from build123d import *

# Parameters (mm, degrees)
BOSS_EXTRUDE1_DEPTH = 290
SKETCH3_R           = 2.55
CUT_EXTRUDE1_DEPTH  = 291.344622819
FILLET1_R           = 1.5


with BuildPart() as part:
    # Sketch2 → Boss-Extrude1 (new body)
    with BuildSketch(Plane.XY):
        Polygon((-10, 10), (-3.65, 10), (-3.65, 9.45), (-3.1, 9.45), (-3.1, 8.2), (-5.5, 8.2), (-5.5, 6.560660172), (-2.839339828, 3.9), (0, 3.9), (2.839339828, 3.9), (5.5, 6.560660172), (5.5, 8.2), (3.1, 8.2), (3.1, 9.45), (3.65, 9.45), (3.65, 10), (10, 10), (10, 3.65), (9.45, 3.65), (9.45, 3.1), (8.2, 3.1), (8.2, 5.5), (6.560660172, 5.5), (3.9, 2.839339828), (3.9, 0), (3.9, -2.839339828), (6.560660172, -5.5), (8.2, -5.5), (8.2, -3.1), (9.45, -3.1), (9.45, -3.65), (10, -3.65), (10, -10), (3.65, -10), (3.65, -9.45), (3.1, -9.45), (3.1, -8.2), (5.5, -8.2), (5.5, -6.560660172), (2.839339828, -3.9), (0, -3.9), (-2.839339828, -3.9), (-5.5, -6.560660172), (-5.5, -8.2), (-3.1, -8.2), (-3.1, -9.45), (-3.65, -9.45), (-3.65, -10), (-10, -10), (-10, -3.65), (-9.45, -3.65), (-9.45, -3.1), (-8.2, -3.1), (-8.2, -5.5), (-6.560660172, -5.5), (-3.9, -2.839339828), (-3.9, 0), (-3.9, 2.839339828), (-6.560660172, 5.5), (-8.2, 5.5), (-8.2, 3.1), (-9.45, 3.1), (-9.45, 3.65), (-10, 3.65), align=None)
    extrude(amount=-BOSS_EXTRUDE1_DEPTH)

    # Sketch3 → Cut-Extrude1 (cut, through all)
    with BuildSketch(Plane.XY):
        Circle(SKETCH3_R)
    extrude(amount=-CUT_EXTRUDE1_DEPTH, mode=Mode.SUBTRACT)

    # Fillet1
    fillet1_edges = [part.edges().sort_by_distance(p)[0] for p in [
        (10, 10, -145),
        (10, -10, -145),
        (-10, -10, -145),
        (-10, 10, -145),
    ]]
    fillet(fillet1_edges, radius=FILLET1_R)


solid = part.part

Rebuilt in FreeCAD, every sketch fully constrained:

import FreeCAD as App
import Part
import Sketcher

V = App.Vector


def edges_at(feature, points):
    """Names of the edges that pass closest to the given points."""
    edges = feature.Shape.Edges
    near = lambda p: min(range(len(edges)), key=lambda i: edges[i].distToShape(Part.Vertex(*p))[0])
    return sorted({f"Edge{near(p) + 1}" for p in points})

doc = App.newDocument("Part")
body = doc.addObject("PartDesign::Body", "Body")

sketch1 = doc.addObject("Sketcher::SketchObject", "Sketch")
body.addObject(sketch1)
sketch1.AttachmentSupport = (doc.XY_Plane, [""])
sketch1.MapMode = "FlatFace"
sketch1.addGeometry([
    Part.LineSegment(V(-3.6, 10, 0), V(-10, 10, 0)),
    Part.LineSegment(V(-10, 10, 0), V(-10, 3.6, 0)),
    Part.LineSegment(V(-10, 3.6, 0), V(-9.4, 3.6, 0)),
    Part.LineSegment(V(-9.4, 3.6, 0), V(-9.4, 3.1, 0)),
    Part.LineSegment(V(-9.4, 3.1, 0), V(-8.2, 3.1, 0)),
    Part.LineSegment(V(-8.2, 3.1, 0), V(-8.2, 5.5, 0)),
    Part.LineSegment(V(-8.2, 5.5, 0), V(-6.6, 5.5, 0)),
    Part.LineSegment(V(-6.6, 5.5, 0), V(-3.9, 2.8, 0)),
    Part.LineSegment(V(-3.9, 2.8, 0), V(-3.9, -2.8, 0)),
    Part.LineSegment(V(-3.9, -2.8, 0), V(-6.6, -5.5, 0)),
    Part.LineSegment(V(-6.6, -5.5, 0), V(-8.2, -5.5, 0)),
    Part.LineSegment(V(-8.2, -5.5, 0), V(-8.2, -3.1, 0)),
    Part.LineSegment(V(-8.2, -3.1, 0), V(-9.4, -3.1, 0)),
    Part.LineSegment(V(-9.4, -3.1, 0), V(-9.4, -3.6, 0)),
    Part.LineSegment(V(-9.4, -3.6, 0), V(-10, -3.6, 0)),
    Part.LineSegment(V(-10, -3.6, 0), V(-10, -10, 0)),
    Part.LineSegment(V(-10, -10, 0), V(-3.6, -10, 0)),
    Part.LineSegment(V(-3.6, -10, 0), V(-3.6, -9.4, 0)),
    Part.LineSegment(V(-3.6, -9.4, 0), V(-3.1, -9.4, 0)),
    Part.LineSegment(V(-3.1, -9.4, 0), V(-3.1, -8.2, 0)),
    Part.LineSegment(V(-3.1, -8.2, 0), V(-5.5, -8.2, 0)),
    Part.LineSegment(V(-5.5, -8.2, 0), V(-5.5, -6.6, 0)),
    Part.LineSegment(V(-5.5, -6.6, 0), V(-2.8, -3.9, 0)),
    Part.LineSegment(V(-2.8, -3.9, 0), V(2.8, -3.9, 0)),
    Part.LineSegment(V(2.8, -3.9, 0), V(5.5, -6.6, 0)),
    Part.LineSegment(V(5.5, -6.6, 0), V(5.5, -8.2, 0)),
    Part.LineSegment(V(5.5, -8.2, 0), V(3.1, -8.2, 0)),
    Part.LineSegment(V(3.1, -8.2, 0), V(3.1, -9.4, 0)),
    Part.LineSegment(V(3.1, -9.4, 0), V(3.6, -9.4, 0)),
    Part.LineSegment(V(3.6, -9.4, 0), V(3.6, -10, 0)),
    Part.LineSegment(V(3.6, -10, 0), V(10, -10, 0)),
    Part.LineSegment(V(10, -10, 0), V(10, -3.6, 0)),
    Part.LineSegment(V(10, -3.6, 0), V(9.4, -3.6, 0)),
    Part.LineSegment(V(9.4, -3.6, 0), V(9.4, -3.1, 0)),
    Part.LineSegment(V(9.4, -3.1, 0), V(8.2, -3.1, 0)),
    Part.LineSegment(V(8.2, -3.1, 0), V(8.2, -5.5, 0)),
    Part.LineSegment(V(8.2, -5.5, 0), V(6.6, -5.5, 0)),
    Part.LineSegment(V(6.6, -5.5, 0), V(3.9, -2.8, 0)),
    Part.LineSegment(V(3.9, -2.8, 0), V(3.9, 2.8, 0)),
    Part.LineSegment(V(3.9, 2.8, 0), V(6.6, 5.5, 0)),
    Part.LineSegment(V(6.6, 5.5, 0), V(8.2, 5.5, 0)),
    Part.LineSegment(V(8.2, 5.5, 0), V(8.2, 3.1, 0)),
    Part.LineSegment(V(8.2, 3.1, 0), V(9.4, 3.1, 0)),
    Part.LineSegment(V(9.4, 3.1, 0), V(9.4, 3.6, 0)),
    Part.LineSegment(V(9.4, 3.6, 0), V(10, 3.6, 0)),
    Part.LineSegment(V(10, 3.6, 0), V(10, 10, 0)),
    Part.LineSegment(V(10, 10, 0), V(3.6, 10, 0)),
    Part.LineSegment(V(3.6, 10, 0), V(3.6, 9.4, 0)),
    Part.LineSegment(V(3.6, 9.4, 0), V(3.1, 9.4, 0)),
    Part.LineSegment(V(3.1, 9.4, 0), V(3.1, 8.2, 0)),
    Part.LineSegment(V(3.1, 8.2, 0), V(5.5, 8.2, 0)),
    Part.LineSegment(V(5.5, 8.2, 0), V(5.5, 6.6, 0)),
    Part.LineSegment(V(5.5, 6.6, 0), V(2.8, 3.9, 0)),
    Part.LineSegment(V(2.8, 3.9, 0), V(-2.8, 3.9, 0)),
    Part.LineSegment(V(-2.8, 3.9, 0), V(-5.5, 6.6, 0)),
    Part.LineSegment(V(-5.5, 6.6, 0), V(-5.5, 8.2, 0)),
    Part.LineSegment(V(-5.5, 8.2, 0), V(-3.1, 8.2, 0)),
    Part.LineSegment(V(-3.1, 8.2, 0), V(-3.1, 9.4, 0)),
    Part.LineSegment(V(-3.1, 9.4, 0), V(-3.6, 9.4, 0)),
    Part.LineSegment(V(-3.6, 9.4, 0), V(-3.6, 10, 0)),
], False)
sketch1.addConstraint([
    Sketcher.Constraint("Coincident", 0, 2, 1, 1),
    Sketcher.Constraint("Coincident", 1, 2, 2, 1),
    Sketcher.Constraint("Coincident", 2, 2, 3, 1),
    Sketcher.Constraint("Coincident", 3, 2, 4, 1),
    Sketcher.Constraint("Coincident", 4, 2, 5, 1),
    Sketcher.Constraint("Coincident", 5, 2, 6, 1),
    Sketcher.Constraint("Coincident", 6, 2, 7, 1),
    Sketcher.Constraint("Coincident", 7, 2, 8, 1),
    Sketcher.Constraint("Coincident", 8, 2, 9, 1),
    Sketcher.Constraint("Coincident", 9, 2, 10, 1),
    Sketcher.Constraint("Coincident", 10, 2, 11, 1),
    Sketcher.Constraint("Coincident", 11, 2, 12, 1),
    Sketcher.Constraint("Coincident", 12, 2, 13, 1),
    Sketcher.Constraint("Coincident", 13, 2, 14, 1),
    Sketcher.Constraint("Coincident", 14, 2, 15, 1),
    Sketcher.Constraint("Coincident", 15, 2, 16, 1),
    Sketcher.Constraint("Coincident", 16, 2, 17, 1),
    Sketcher.Constraint("Coincident", 17, 2, 18, 1),
    Sketcher.Constraint("Coincident", 18, 2, 19, 1),
    Sketcher.Constraint("Coincident", 19, 2, 20, 1),
    Sketcher.Constraint("Coincident", 20, 2, 21, 1),
    Sketcher.Constraint("Coincident", 21, 2, 22, 1),
    Sketcher.Constraint("Coincident", 22, 2, 23, 1),
    Sketcher.Constraint("Coincident", 23, 2, 24, 1),
    Sketcher.Constraint("Coincident", 24, 2, 25, 1),
    Sketcher.Constraint("Coincident", 25, 2, 26, 1),
    Sketcher.Constraint("Coincident", 26, 2, 27, 1),
    Sketcher.Constraint("Coincident", 27, 2, 28, 1),
    Sketcher.Constraint("Coincident", 28, 2, 29, 1),
    Sketcher.Constraint("Coincident", 29, 2, 30, 1),
    Sketcher.Constraint("Coincident", 30, 2, 31, 1),
    Sketcher.Constraint("Coincident", 31, 2, 32, 1),
    Sketcher.Constraint("Coincident", 32, 2, 33, 1),
    Sketcher.Constraint("Coincident", 33, 2, 34, 1),
    Sketcher.Constraint("Coincident", 34, 2, 35, 1),
    Sketcher.Constraint("Coincident", 35, 2, 36, 1),
    Sketcher.Constraint("Coincident", 36, 2, 37, 1),
    Sketcher.Constraint("Coincident", 37, 2, 38, 1),
    Sketcher.Constraint("Coincident", 38, 2, 39, 1),
    Sketcher.Constraint("Coincident", 39, 2, 40, 1),
    Sketcher.Constraint("Coincident", 40, 2, 41, 1),
    Sketcher.Constraint("Coincident", 41, 2, 42, 1),
    Sketcher.Constraint("Coincident", 42, 2, 43, 1),
    Sketcher.Constraint("Coincident", 43, 2, 44, 1),
    Sketcher.Constraint("Coincident", 44, 2, 45, 1),
    Sketcher.Constraint("Coincident", 45, 2, 46, 1),
    Sketcher.Constraint("Coincident", 46, 2, 47, 1),
    Sketcher.Constraint("Coincident", 47, 2, 48, 1),
    Sketcher.Constraint("Coincident", 48, 2, 49, 1),
    Sketcher.Constraint("Coincident", 49, 2, 50, 1),
    Sketcher.Constraint("Coincident", 50, 2, 51, 1),
    Sketcher.Constraint("Coincident", 51, 2, 52, 1),
    Sketcher.Constraint("Coincident", 52, 2, 53, 1),
    Sketcher.Constraint("Coincident", 53, 2, 54, 1),
    Sketcher.Constraint("Coincident", 54, 2, 55, 1),
    Sketcher.Constraint("Coincident", 55, 2, 56, 1),
    Sketcher.Constraint("Coincident", 56, 2, 57, 1),
    Sketcher.Constraint("Coincident", 57, 2, 58, 1),
    Sketcher.Constraint("Coincident", 58, 2, 59, 1),
    Sketcher.Constraint("Coincident", 59, 2, 0, 1),
    Sketcher.Constraint("Horizontal", 0),
    Sketcher.Constraint("Vertical", 1),
    Sketcher.Constraint("Horizontal", 2),
    Sketcher.Constraint("Vertical", 3),
    Sketcher.Constraint("Horizontal", 4),
    Sketcher.Constraint("Vertical", 5),
    Sketcher.Constraint("Horizontal", 6),
    Sketcher.Constraint("Vertical", 8),
    Sketcher.Constraint("Horizontal", 10),
    Sketcher.Constraint("Vertical", 11),
    Sketcher.Constraint("Horizontal", 12),
    Sketcher.Constraint("Vertical", 13),
    Sketcher.Constraint("Horizontal", 14),
    Sketcher.Constraint("Vertical", 15),
    Sketcher.Constraint("Horizontal", 16),
    Sketcher.Constraint("Vertical", 17),
    Sketcher.Constraint("Horizontal", 18),
    Sketcher.Constraint("Vertical", 19),
    Sketcher.Constraint("Horizontal", 20),
    Sketcher.Constraint("Vertical", 21),
    Sketcher.Constraint("Horizontal", 23),
    Sketcher.Constraint("Vertical", 25),
    Sketcher.Constraint("Horizontal", 26),
    Sketcher.Constraint("Vertical", 27),
    Sketcher.Constraint("Horizontal", 28),
    Sketcher.Constraint("Vertical", 29),
    Sketcher.Constraint("Horizontal", 30),
    Sketcher.Constraint("Vertical", 31),
    Sketcher.Constraint("Horizontal", 32),
    Sketcher.Constraint("Vertical", 33),
    Sketcher.Constraint("Horizontal", 34),
    Sketcher.Constraint("Vertical", 35),
    Sketcher.Constraint("Horizontal", 36),
    Sketcher.Constraint("Vertical", 38),
    Sketcher.Constraint("Horizontal", 40),
    Sketcher.Constraint("Vertical", 41),
    Sketcher.Constraint("Horizontal", 42),
    Sketcher.Constraint("Vertical", 43),
    Sketcher.Constraint("Horizontal", 44),
    Sketcher.Constraint("Vertical", 45),
    Sketcher.Constraint("Horizontal", 46),
    Sketcher.Constraint("Vertical", 47),
    Sketcher.Constraint("Horizontal", 48),
    Sketcher.Constraint("Vertical", 49),
    Sketcher.Constraint("Horizontal", 50),
    Sketcher.Constraint("Vertical", 51),
    Sketcher.Constraint("Horizontal", 53),
    Sketcher.Constraint("Vertical", 55),
    Sketcher.Constraint("Horizontal", 56),
    Sketcher.Constraint("Vertical", 57),
    Sketcher.Constraint("Horizontal", 58),
    Sketcher.Constraint("Vertical", 59),
    Sketcher.Constraint("Symmetric", 0, 2, 30, 2, -1, 1),
    Sketcher.Constraint("Symmetric", 2, 2, 32, 2, -1, 1),
    Sketcher.Constraint("Symmetric", 4, 2, 34, 2, -1, 1),
    Sketcher.Constraint("Symmetric", 6, 2, 36, 2, -1, 1),
    Sketcher.Constraint("Symmetric", 7, 2, 37, 2, -1, 1),
    Sketcher.Constraint("Symmetric", 9, 2, 39, 2, -1, 1),
    Sketcher.Constraint("Symmetric", 11, 2, 41, 2, -1, 1),
    Sketcher.Constraint("Symmetric", 13, 2, 43, 2, -1, 1),
    Sketcher.Constraint("Symmetric", 15, 2, 45, 2, -1, 1),
    Sketcher.Constraint("Symmetric", 17, 2, 47, 2, -1, 1),
    Sketcher.Constraint("Symmetric", 19, 2, 49, 2, -1, 1),
    Sketcher.Constraint("Symmetric", 21, 2, 51, 2, -1, 1),
    Sketcher.Constraint("Symmetric", 22, 2, 52, 2, -1, 1),
    Sketcher.Constraint("Symmetric", 24, 2, 54, 2, -1, 1),
    Sketcher.Constraint("Symmetric", 26, 2, 56, 2, -1, 1),
    Sketcher.Constraint("Symmetric", 28, 2, 58, 2, -1, 1),
    Sketcher.Constraint("Symmetric", 21, 2, 24, 2, -2),
    Sketcher.Constraint("Symmetric", 19, 2, 26, 2, -2),
    Sketcher.Constraint("Symmetric", 17, 2, 28, 2, -2),
    Sketcher.Constraint("Symmetric", 15, 2, 30, 2, -2),
    Sketcher.Constraint("Symmetric", 13, 2, 32, 2, -2),
    Sketcher.Constraint("Symmetric", 11, 2, 34, 2, -2),
    Sketcher.Constraint("Symmetric", 9, 2, 36, 2, -2),
    Sketcher.Constraint("Perpendicular", 7, 9),
    Sketcher.Constraint("Parallel", 9, 22),
    Sketcher.Constraint("Perpendicular", 22, 24),
    Sketcher.Constraint("Perpendicular", 37, 39),
    Sketcher.Constraint("Perpendicular", 52, 54),
    Sketcher.Constraint("Horizontal", 8, 2, 37, 2),
    Sketcher.Constraint("Equal", 14, 18),
    Sketcher.Constraint("Equal", 46, 1),
    Sketcher.Constraint("Equal", 58, 3),
    Sketcher.Constraint("Equal", 56, 5),
    Sketcher.Constraint("Equal", 53, 8),
    Sketcher.Constraint("Equal", 13, 17),
    Sketcher.Constraint("Equal", 42, 19),
    Sketcher.Constraint("Equal", 40, 21),
    Sketcher.Constraint("Equal", 9, 22),
    Sketcher.Constraint("DistanceX", 20, 2, 20, 1, 2.4),
    Sketcher.Constraint("DistanceX", 0, 2, -1, 1, 10.0),
    Sketcher.Constraint("DistanceX", 0, 2, 0, 1, 6.35),
    Sketcher.Constraint("DistanceX", 2, 1, 2, 2, 0.55),
    Sketcher.Constraint("DistanceX", 4, 1, 4, 2, 1.25),
    Sketcher.Constraint("DistanceX", 7, 2, -1, 1, 3.9),
    Sketcher.Constraint("DistanceX", 6, 1, 6, 2, 1.63934),
])
pad1 = doc.addObject("PartDesign::Pad", "Pad")
body.addObject(pad1)
pad1.Profile = sketch1
pad1.Length = 290
pad1.Reversed = True

sketch2 = doc.addObject("Sketcher::SketchObject", "Sketch001")
body.addObject(sketch2)
sketch2.AttachmentSupport = (doc.XY_Plane, [""])
sketch2.MapMode = "FlatFace"
sketch2.addGeometry(Part.Circle(V(0, 0, 0), V(0, 0, 1), 2.5), False)
sketch2.addConstraint([
    Sketcher.Constraint("Coincident", 0, 3, -1, 1),
    Sketcher.Constraint("Diameter", 0, 5.1),
])
pocket1 = doc.addObject("PartDesign::Pocket", "Pocket")
body.addObject(pocket1)
pocket1.Profile = sketch2
pocket1.Type = "ThroughAll"
doc.recompute()

fillet = doc.addObject("PartDesign::Fillet", "Fillet")
body.addObject(fillet)
fillet.Base = (pocket1, edges_at(pocket1, [
    (10, 10, -145),
    (10, -10, -145),
    (-10, -10, -145),
    (-10, 10, -145),
]))
fillet.Radius = 1.5

doc.recompute()
